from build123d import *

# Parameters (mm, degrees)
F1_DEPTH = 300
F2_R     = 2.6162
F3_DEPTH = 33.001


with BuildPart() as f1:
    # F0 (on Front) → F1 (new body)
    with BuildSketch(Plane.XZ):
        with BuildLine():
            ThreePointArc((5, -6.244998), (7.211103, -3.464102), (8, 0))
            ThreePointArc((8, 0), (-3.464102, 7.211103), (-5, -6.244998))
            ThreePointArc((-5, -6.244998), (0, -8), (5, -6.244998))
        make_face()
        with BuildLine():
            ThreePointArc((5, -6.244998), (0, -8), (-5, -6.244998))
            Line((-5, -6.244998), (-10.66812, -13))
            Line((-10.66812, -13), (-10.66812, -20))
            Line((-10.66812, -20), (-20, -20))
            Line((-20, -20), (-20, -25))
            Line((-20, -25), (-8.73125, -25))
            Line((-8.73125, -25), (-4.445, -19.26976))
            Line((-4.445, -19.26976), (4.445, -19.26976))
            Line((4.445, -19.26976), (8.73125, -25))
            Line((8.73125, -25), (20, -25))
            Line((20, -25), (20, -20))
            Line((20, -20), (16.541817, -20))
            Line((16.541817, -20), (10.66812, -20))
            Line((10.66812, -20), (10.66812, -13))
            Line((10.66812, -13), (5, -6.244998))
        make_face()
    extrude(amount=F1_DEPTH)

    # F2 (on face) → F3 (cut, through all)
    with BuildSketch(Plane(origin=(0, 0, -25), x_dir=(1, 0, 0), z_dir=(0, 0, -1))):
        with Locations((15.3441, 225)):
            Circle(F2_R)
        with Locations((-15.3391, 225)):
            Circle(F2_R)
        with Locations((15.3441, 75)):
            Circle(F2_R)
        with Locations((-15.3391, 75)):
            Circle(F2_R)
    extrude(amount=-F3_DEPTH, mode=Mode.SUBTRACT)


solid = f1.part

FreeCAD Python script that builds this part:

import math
import FreeCAD as App
import Part
import Sketcher

V = App.Vector
Q = App.Units.Quantity

doc = App.newDocument("Part")
body = doc.addObject("PartDesign::Body", "Body")

# Sketch on XZ plane
sketch1 = body.newObject("Sketcher::SketchObject", "Sketch")
sketch1.AttachmentSupport = (doc.getObject("XZ_Plane"), [""])
sketch1.MapMode = "FlatFace"
sketch1.addGeometry(Part.ArcOfCircle(Part.Circle(V(0, 0, 0), V(0, 0, 1), 8), math.radians(-51), math.radians(0)), False)
sketch1.addGeometry(Part.ArcOfCircle(Part.Circle(V(0, 0, 0), V(0, 0, 1), 8), math.radians(0), math.radians(231)), False)
sketch1.addGeometry(Part.LineSegment(V(-5, -6, 0), V(-11, -13, 0)), False)
sketch1.addGeometry(Part.LineSegment(V(-11, -13, 0), V(-11, -20, 0)), False)
sketch1.addGeometry(Part.LineSegment(V(-11, -20, 0), V(-20, -20, 0)), False)
sketch1.addGeometry(Part.LineSegment(V(-20, -20, 0), V(-20, -25, 0)), False)
sketch1.addGeometry(Part.LineSegment(V(-20, -25, 0), V(-9, -25, 0)), False)
sketch1.addGeometry(Part.LineSegment(V(-9, -25, 0), V(-4, -19, 0)), False)
sketch1.addGeometry(Part.LineSegment(V(-4, -19, 0), V(4, -19, 0)), False)
sketch1.addGeometry(Part.LineSegment(V(4, -19, 0), V(9, -25, 0)), False)
sketch1.addGeometry(Part.LineSegment(V(9, -25, 0), V(20, -25, 0)), False)
sketch1.addGeometry(Part.LineSegment(V(20, -25, 0), V(20, -20, 0)), False)
sketch1.addGeometry(Part.LineSegment(V(20, -20, 0), V(11, -20, 0)), False)
sketch1.addGeometry(Part.LineSegment(V(11, -20, 0), V(11, -13, 0)), False)
sketch1.addGeometry(Part.LineSegment(V(11, -13, 0), V(5, -6, 0)), False)
sketch1.addConstraint(Sketcher.Constraint("Tangent", 0, 2, 1, 1))
sketch1.addConstraint(Sketcher.Constraint("Coincident", 1, 2, 2, 1))
sketch1.addConstraint(Sketcher.Constraint("Coincident", 2, 2, 3, 1))
sketch1.addConstraint(Sketcher.Constraint("Coincident", 3, 2, 4, 1))
sketch1.addConstraint(Sketcher.Constraint("Coincident", 4, 2, 5, 1))
sketch1.addConstraint(Sketcher.Constraint("Coincident", 5, 2, 6, 1))
sketch1.addConstraint(Sketcher.Constraint("Coincident", 6, 2, 7, 1))
sketch1.addConstraint(Sketcher.Constraint("Coincident", 7, 2, 8, 1))
sketch1.addConstraint(Sketcher.Constraint("Coincident", 8, 2, 9, 1))
sketch1.addConstraint(Sketcher.Constraint("Coincident", 9, 2, 10, 1))
sketch1.addConstraint(Sketcher.Constraint("Coincident", 10, 2, 11, 1))
sketch1.addConstraint(Sketcher.Constraint("Coincident", 11, 2, 12, 1))
sketch1.addConstraint(Sketcher.Constraint("Coincident", 12, 2, 13, 1))
sketch1.addConstraint(Sketcher.Constraint("Coincident", 13, 2, 14, 1))
sketch1.addConstraint(Sketcher.Constraint("Coincident", 14, 2, 0, 1))
sketch1.addConstraint(Sketcher.Constraint("Vertical", 3))
sketch1.addConstraint(Sketcher.Constraint("Horizontal", 4))
sketch1.addConstraint(Sketcher.Constraint("Vertical", 5))
sketch1.addConstraint(Sketcher.Constraint("Horizontal", 6))
sketch1.addConstraint(Sketcher.Constraint("Horizontal", 8))
sketch1.addConstraint(Sketcher.Constraint("Horizontal", 10))
sketch1.addConstraint(Sketcher.Constraint("Vertical", 11))
sketch1.addConstraint(Sketcher.Constraint("Horizontal", 12))
sketch1.addConstraint(Sketcher.Constraint("Vertical", 13))
sketch1.addConstraint(Sketcher.Constraint("Coincident", 0, 3, -1, 1))
sketch1.addConstraint(Sketcher.Constraint("Symmetric", 6, 2, 9, 2, -2))
sketch1.addConstraint(Sketcher.Constraint("Symmetric", 4, 2, 11, 2, -2))
sketch1.addConstraint(Sketcher.Constraint("Symmetric", 2, 2, 13, 2, -2))
sketch1.addConstraint(Sketcher.Constraint("Symmetric", 1, 2, 14, 2, -2))
sketch1.addConstraint(Sketcher.Constraint("PointOnObject", 0, 2, -1))
sketch1.addConstraint(Sketcher.Constraint("Equal", 7, 9))
sketch1.addConstraint(Sketcher.Constraint("Radius", 1, Q("8 mm")))
sketch1.addConstraint(Sketcher.Constraint("DistanceY", 3, 2, 3, 1, Q("7 mm")))
sketch1.addConstraint(Sketcher.Constraint("DistanceY", 5, 2, 5, 1, Q("5 mm")))
sketch1.addConstraint(Sketcher.Constraint("Angle", 2, Q("-130.000002 deg")))
sketch1.addConstraint(Sketcher.Constraint("DistanceX", 1, 2, -1, 1, Q("5 mm")))
sketch1.addConstraint(Sketcher.Constraint("DistanceY", 2, 2, -1, 1, Q("13 mm")))
sketch1.addConstraint(Sketcher.Constraint("DistanceX", 4, 2, -1, 1, Q("20 mm")))
sketch1.addConstraint(Sketcher.Constraint("DistanceX", 8, 1, 8, 2, Q("8.89 mm")))
sketch1.addConstraint(Sketcher.Constraint("DistanceX", 6, 1, 6, 2, Q("11.26875 mm")))
sketch1.addConstraint(Sketcher.Constraint("DistanceY", 7, 2, -1, 1, Q("19.26976 mm")))
pad1 = body.newObject("PartDesign::Pad", "Pad")
pad1.Profile = sketch1
pad1.Length = 300

# Sketch on XY plane
sketch2 = body.newObject("Sketcher::SketchObject", "Sketch001")
sketch2.AttachmentSupport = (doc.getObject("XY_Plane"), [""])
sketch2.MapMode = "FlatFace"
sketch2.AttachmentOffset = App.Placement(V(0, 0, -25), App.Rotation())
sketch2.addGeometry(Part.Circle(V(15.3, -225, 0), V(0, 0, 1), 2.6), False)
sketch2.addGeometry(Part.Circle(V(-15.3, -225, 0), V(0, 0, 1), 2.6), False)
sketch2.addGeometry(Part.Circle(V(15.3, -75, 0), V(0, 0, 1), 2.6), False)
sketch2.addGeometry(Part.Circle(V(-15.3, -75, 0), V(0, 0, 1), 2.6), False)
sketch2.addConstraint(Sketcher.Constraint("Equal", 0, 1))
sketch2.addConstraint(Sketcher.Constraint("Equal", 1, 2))
sketch2.addConstraint(Sketcher.Constraint("Equal", 2, 3))
sketch2.addConstraint(Sketcher.Constraint("Horizontal", 0, 3, 1, 3))
sketch2.addConstraint(Sketcher.Constraint("Horizontal", 2, 3, 3, 3))
sketch2.addConstraint(Sketcher.Constraint("Vertical", 0, 3, 2, 3))
sketch2.addConstraint(Sketcher.Constraint("Vertical", 1, 3, 3, 3))
sketch2.addConstraint(Sketcher.Constraint("DistanceY", 0, 3, -1, 1, Q("225 mm")))
sketch2.addConstraint(Sketcher.Constraint("DistanceY", 2, 3, -1, 1, Q("75 mm")))
sketch2.addConstraint(Sketcher.Constraint("Diameter", 0, Q("5.2324 mm")))
sketch2.addConstraint(Sketcher.Constraint("DistanceX", -1, 1, 0, 3, Q("15.3441 mm")))
sketch2.addConstraint(Sketcher.Constraint("DistanceX", 1, 3, -1, 1, Q("15.3391 mm")))
pocket1 = body.newObject("PartDesign::Pocket", "Pocket")
pocket1.Profile = sketch2
pocket1.Type = "ThroughAll"
pocket1.Reversed = True

doc.recompute()
